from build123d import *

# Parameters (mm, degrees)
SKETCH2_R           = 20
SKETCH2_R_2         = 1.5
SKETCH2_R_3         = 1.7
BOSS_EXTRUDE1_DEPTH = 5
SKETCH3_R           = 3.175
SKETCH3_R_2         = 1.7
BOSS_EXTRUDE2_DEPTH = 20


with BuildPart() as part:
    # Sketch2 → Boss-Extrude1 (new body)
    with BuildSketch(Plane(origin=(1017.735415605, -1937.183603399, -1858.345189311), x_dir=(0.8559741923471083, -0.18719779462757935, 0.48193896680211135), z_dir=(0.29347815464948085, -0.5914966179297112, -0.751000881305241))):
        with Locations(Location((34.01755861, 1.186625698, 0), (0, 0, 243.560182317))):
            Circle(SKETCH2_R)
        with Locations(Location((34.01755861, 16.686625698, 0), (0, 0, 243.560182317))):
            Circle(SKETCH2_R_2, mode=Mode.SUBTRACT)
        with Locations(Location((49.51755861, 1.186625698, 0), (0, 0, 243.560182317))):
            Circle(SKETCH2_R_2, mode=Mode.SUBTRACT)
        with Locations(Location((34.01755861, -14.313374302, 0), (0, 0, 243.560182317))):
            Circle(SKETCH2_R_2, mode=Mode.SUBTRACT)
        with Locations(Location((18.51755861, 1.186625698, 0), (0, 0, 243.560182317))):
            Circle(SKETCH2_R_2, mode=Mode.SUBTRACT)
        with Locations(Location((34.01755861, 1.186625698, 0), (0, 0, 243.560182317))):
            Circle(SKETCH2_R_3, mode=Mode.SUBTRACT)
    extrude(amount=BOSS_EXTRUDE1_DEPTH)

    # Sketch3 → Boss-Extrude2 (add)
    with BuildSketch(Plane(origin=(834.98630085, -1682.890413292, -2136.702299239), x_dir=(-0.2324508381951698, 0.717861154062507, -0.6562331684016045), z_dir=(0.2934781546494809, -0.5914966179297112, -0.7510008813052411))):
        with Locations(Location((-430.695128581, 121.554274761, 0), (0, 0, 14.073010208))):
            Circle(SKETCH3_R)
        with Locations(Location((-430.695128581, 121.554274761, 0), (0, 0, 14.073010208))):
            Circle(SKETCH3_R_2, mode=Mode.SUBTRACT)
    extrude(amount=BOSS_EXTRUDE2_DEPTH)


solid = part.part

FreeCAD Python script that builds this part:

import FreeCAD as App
import Part
import Sketcher

V = App.Vector
Q = App.Units.Quantity

doc = App.newDocument("Part")
body = doc.addObject("PartDesign::Body", "Body")

sketch1 = body.newObject("Sketcher::SketchObject", "Sketch")
sketch1.Placement = App.Placement(V(1017.735416, -1937.183603, -1858.345189), App.Rotation(V(0.855974192, -0.187197795, 0.481938967), V(-0.425650978, -0.784275931, 0.451367376), V(0.293478155, -0.591496618, -0.751000881), "ZXY"))
sketch1.addGeometry([
    Part.Circle(V(34, 1.2, 0), V(0, 0, 1), 20),
    Part.Circle(V(34, 16.7, 0), V(0, 0, 1), 1.5),
    Part.Circle(V(18.5, 1.2, 0), V(0, 0, 1), 1.5),
    Part.Circle(V(49.5, 1.2, 0), V(0, 0, 1), 1.5),
    Part.Circle(V(34, 1.2, 0), V(0, 0, 1), 1.7),
    Part.Circle(V(34, -14.3, 0), V(0, 0, 1), 1.5),
], False)
sketch1.addConstraint([
    Sketcher.Constraint("Coincident", 4, 3, 0, 3),
    Sketcher.Constraint("Equal", 1, 2),
    Sketcher.Constraint("Equal", 2, 3),
    Sketcher.Constraint("Equal", 3, 5),
    Sketcher.Constraint("Horizontal", 0, 3, 2, 3),
    Sketcher.Constraint("Horizontal", 2, 3, 3, 3),
    Sketcher.Constraint("Vertical", 0, 3, 1, 3),
    Sketcher.Constraint("Vertical", 4, 3, 5, 3),
    Sketcher.Constraint("Diameter", 0, Q("40 mm")),
    Sketcher.Constraint("Diameter", 1, Q("3 mm")),
    Sketcher.Constraint("Diameter", 4, Q("3.4 mm")),
    Sketcher.Constraint("DistanceX", 2, 3, 3, 3, Q("31 mm")),
    Sketcher.Constraint("DistanceY", 5, 3, 1, 3, Q("31 mm")),
    Sketcher.Constraint("DistanceY", 0, 3, 1, 3, Q("15.5 mm")),
    Sketcher.Constraint("DistanceX", 2, 3, 0, 3, Q("15.5 mm")),
    Sketcher.Constraint("DistanceX", -1, 1, 0, 3, Q("34.017559 mm")),
    Sketcher.Constraint("DistanceY", -1, 1, 0, 3, Q("1.186626 mm")),
])
pad1 = body.newObject("PartDesign::Pad", "Pad")
pad1.Profile = sketch1
pad1.Length = 5

sketch2 = body.newObject("Sketcher::SketchObject", "Sketch001")
sketch2.Placement = App.Placement(V(834.986301, -1682.890413, -2136.702299), App.Rotation(V(-0.232450838, 0.717861154, -0.656233168), V(0.927274059, 0.367160884, 0.073182682), V(0.293478155, -0.591496618, -0.751000881), "ZXY"))
sketch2.addGeometry([
    Part.Circle(V(-430.7, 121.6, 0), V(0, 0, 1), 3.2),
    Part.Circle(V(-430.7, 121.6, 0), V(0, 0, 1), 1.7),
], False)
sketch2.addConstraint([
    Sketcher.Constraint("Coincident", 1, 3, 0, 3),
    Sketcher.Constraint("Diameter", 1, Q("3.4 mm")),
    Sketcher.Constraint("Diameter", 0, Q("6.35 mm")),
    Sketcher.Constraint("DistanceX", 0, 3, -1, 1, Q("430.695128 mm")),
    Sketcher.Constraint("DistanceY", -1, 1, 0, 3, Q("121.554275 mm")),
])
pad2 = body.newObject("PartDesign::Pad", "Pad001")
pad2.Profile = sketch2
pad2.Length = 20

doc.recompute()
